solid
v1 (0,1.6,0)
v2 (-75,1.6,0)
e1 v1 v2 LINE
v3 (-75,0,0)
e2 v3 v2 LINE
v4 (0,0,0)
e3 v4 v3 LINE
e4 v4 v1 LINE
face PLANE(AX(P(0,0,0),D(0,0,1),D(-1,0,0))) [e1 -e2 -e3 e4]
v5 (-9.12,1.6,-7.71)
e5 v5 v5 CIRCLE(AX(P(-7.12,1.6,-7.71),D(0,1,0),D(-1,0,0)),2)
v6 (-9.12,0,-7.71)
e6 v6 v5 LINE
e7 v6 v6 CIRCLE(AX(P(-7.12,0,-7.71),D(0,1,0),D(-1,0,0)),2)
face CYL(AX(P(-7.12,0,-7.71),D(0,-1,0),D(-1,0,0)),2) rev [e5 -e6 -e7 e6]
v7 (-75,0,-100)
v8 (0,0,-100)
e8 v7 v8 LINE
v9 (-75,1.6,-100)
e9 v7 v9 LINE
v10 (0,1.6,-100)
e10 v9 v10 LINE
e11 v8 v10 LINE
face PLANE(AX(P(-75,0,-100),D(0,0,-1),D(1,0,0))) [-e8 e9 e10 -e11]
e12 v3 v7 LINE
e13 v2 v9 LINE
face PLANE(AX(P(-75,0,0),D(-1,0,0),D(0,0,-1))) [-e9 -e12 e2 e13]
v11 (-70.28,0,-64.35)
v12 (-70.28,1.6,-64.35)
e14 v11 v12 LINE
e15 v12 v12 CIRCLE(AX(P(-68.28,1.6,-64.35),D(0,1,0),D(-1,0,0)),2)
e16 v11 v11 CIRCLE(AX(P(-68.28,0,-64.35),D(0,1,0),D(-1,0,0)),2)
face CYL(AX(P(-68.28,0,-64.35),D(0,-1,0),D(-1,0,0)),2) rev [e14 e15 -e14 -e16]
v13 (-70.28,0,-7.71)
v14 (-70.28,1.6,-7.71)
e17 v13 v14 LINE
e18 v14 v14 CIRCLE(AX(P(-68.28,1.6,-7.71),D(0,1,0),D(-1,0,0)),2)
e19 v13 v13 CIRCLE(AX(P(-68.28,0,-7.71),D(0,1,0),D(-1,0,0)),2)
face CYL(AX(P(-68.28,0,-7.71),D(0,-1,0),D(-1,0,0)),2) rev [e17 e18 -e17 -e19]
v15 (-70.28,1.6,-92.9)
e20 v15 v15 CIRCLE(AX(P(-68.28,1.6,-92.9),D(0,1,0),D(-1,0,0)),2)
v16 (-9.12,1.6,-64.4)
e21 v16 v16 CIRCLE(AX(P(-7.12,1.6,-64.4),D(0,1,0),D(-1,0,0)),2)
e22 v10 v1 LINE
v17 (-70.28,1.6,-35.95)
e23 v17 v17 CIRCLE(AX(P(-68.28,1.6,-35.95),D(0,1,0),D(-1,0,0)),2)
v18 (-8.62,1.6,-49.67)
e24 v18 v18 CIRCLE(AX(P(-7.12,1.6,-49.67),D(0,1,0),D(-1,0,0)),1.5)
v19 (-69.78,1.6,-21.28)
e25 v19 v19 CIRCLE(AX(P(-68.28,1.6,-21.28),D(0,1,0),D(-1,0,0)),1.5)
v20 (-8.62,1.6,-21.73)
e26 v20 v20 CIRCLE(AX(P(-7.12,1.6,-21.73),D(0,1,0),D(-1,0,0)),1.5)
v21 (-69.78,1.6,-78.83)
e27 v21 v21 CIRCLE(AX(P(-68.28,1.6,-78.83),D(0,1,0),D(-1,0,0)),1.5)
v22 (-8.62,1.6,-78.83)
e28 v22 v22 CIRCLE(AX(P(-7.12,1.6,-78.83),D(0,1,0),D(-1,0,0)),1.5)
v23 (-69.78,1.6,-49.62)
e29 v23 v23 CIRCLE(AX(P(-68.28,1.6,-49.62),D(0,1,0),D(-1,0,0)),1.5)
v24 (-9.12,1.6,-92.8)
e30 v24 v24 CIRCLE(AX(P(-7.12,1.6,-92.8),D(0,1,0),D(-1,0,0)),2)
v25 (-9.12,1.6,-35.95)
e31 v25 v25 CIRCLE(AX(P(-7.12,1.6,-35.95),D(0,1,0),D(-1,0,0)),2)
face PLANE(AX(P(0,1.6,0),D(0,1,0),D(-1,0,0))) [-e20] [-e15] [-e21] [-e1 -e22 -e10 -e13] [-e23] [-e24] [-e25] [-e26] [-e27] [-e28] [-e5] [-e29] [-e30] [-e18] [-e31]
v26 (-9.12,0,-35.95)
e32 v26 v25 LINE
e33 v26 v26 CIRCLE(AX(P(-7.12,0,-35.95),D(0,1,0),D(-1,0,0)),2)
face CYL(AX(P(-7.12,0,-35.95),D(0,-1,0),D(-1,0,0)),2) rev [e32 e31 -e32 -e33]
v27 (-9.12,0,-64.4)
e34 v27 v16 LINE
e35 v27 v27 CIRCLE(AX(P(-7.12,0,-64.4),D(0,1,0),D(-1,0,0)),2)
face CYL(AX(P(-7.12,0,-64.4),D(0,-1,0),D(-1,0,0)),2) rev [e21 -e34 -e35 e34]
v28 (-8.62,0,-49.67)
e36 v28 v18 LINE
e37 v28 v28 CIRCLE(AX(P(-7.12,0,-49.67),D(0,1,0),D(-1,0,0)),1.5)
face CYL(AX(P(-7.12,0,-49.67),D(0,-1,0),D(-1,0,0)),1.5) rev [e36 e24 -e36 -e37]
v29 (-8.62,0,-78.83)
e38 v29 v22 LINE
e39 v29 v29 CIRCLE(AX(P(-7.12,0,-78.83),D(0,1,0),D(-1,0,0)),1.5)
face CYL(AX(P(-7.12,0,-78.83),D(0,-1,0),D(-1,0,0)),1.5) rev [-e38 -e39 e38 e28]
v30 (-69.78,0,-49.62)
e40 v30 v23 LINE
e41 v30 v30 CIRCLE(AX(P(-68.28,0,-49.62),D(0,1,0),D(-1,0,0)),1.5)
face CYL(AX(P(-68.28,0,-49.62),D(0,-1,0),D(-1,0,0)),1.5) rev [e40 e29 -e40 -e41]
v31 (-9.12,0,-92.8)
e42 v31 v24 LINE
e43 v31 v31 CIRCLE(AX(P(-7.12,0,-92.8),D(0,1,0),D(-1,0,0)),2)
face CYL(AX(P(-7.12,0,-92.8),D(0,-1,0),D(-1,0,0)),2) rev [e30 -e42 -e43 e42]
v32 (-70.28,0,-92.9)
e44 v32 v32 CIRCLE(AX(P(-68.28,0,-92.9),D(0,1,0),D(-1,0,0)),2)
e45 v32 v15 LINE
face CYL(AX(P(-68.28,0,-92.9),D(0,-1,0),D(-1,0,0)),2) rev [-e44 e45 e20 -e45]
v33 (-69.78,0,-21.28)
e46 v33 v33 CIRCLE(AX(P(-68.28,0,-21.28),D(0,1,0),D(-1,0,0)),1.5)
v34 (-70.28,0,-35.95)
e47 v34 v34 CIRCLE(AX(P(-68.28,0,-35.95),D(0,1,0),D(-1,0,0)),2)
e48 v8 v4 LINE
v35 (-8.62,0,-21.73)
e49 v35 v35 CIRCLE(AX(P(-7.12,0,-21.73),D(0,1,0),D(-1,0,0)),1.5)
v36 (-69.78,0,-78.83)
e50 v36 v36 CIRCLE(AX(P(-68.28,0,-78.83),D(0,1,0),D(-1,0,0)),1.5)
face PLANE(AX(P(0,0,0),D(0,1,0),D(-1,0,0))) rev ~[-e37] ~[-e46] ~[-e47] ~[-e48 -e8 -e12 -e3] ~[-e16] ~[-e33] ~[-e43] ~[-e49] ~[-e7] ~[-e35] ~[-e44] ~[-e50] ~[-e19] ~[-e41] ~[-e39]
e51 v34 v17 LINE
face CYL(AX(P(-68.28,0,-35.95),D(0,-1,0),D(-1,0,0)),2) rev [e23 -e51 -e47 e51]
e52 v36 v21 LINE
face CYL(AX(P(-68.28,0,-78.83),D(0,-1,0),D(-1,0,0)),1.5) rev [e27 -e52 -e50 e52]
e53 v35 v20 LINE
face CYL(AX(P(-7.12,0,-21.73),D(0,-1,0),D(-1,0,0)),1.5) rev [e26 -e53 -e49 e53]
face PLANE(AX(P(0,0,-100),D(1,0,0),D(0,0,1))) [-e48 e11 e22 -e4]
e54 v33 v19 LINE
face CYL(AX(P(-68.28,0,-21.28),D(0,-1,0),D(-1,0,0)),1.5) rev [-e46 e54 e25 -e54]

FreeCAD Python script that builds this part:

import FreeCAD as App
import Part
import Sketcher


def add_polygon(sketch, points):
    """Adds a closed chain of lines whose ends are joined by coincident constraints."""
    first, n = sketch.GeometryCount, len(points)
    for a, b in zip(points, points[1:] + points[:1]):
        sketch.addGeometry(Part.LineSegment(App.Vector(*a, 0), App.Vector(*b, 0)), False)
    for i in range(n):
        sketch.addConstraint(Sketcher.Constraint("Coincident", first + i, 2, first + (i + 1) % n, 1))

doc = App.newDocument("Part")
body = doc.addObject("PartDesign::Body", "Body")

# Sketch on XZ plane
sketch1 = body.newObject("Sketcher::SketchObject", "Sketch")
sketch1.AttachmentSupport = (doc.getObject("XZ_Plane"), [""])
sketch1.MapMode = "FlatFace"
add_polygon(sketch1, [(-75, 0), (0, 0), (0, -100), (-75, -100)])  # lines 0-3
sketch1.addGeometry(Part.Circle(App.Vector(-7.1, -92.8, 0), App.Vector(0, 0, 1), 2), False)  # 4
sketch1.addGeometry(Part.Circle(App.Vector(-7.1, -78.8, 0), App.Vector(0, 0, 1), 1.5), False)  # 5
sketch1.addGeometry(Part.Circle(App.Vector(-7.1, -64.4, 0), App.Vector(0, 0, 1), 2), False)  # 6
sketch1.addGeometry(Part.Circle(App.Vector(-68.3, -92.9, 0), App.Vector(0, 0, 1), 2), False)  # 7
sketch1.addGeometry(Part.Circle(App.Vector(-68.3, -78.8, 0), App.Vector(0, 0, 1), 1.5), False)  # 8
sketch1.addGeometry(Part.Circle(App.Vector(-68.3, -64.3, 0), App.Vector(0, 0, 1), 2), False)  # 9
sketch1.addGeometry(Part.Circle(App.Vector(-7.1, -49.7, 0), App.Vector(0, 0, 1), 1.5), False)  # 10
sketch1.addGeometry(Part.Circle(App.Vector(-7.1, -36, 0), App.Vector(0, 0, 1), 2), False)  # 11
sketch1.addGeometry(Part.Circle(App.Vector(-7.1, -21.7, 0), App.Vector(0, 0, 1), 1.5), False)  # 12
sketch1.addGeometry(Part.Circle(App.Vector(-7.1, -7.7, 0), App.Vector(0, 0, 1), 2), False)  # 13
sketch1.addGeometry(Part.Circle(App.Vector(-68.3, -49.6, 0), App.Vector(0, 0, 1), 1.5), False)  # 14
sketch1.addGeometry(Part.Circle(App.Vector(-68.3, -36, 0), App.Vector(0, 0, 1), 2), False)  # 15
sketch1.addGeometry(Part.Circle(App.Vector(-68.3, -21.3, 0), App.Vector(0, 0, 1), 1.5), False)  # 16
sketch1.addGeometry(Part.Circle(App.Vector(-68.3, -7.7, 0), App.Vector(0, 0, 1), 2), False)  # 17
sketch1.addConstraint(Sketcher.Constraint("Horizontal", 0))
sketch1.addConstraint(Sketcher.Constraint("Vertical", 1))
sketch1.addConstraint(Sketcher.Constraint("Horizontal", 2))
sketch1.addConstraint(Sketcher.Constraint("Vertical", 3))
sketch1.addConstraint(Sketcher.Constraint("Coincident", 0, 2, -1, 1))
sketch1.addConstraint(Sketcher.Constraint("Equal", 4, 6))
sketch1.addConstraint(Sketcher.Constraint("Equal", 6, 7))
sketch1.addConstraint(Sketcher.Constraint("Equal", 5, 8))
sketch1.addConstraint(Sketcher.Constraint("Equal", 7, 9))
sketch1.addConstraint(Sketcher.Constraint("Equal", 8, 10))
sketch1.addConstraint(Sketcher.Constraint("Equal", 9, 11))
sketch1.addConstraint(Sketcher.Constraint("Equal", 10, 12))
sketch1.addConstraint(Sketcher.Constraint("Equal", 11, 13))
sketch1.addConstraint(Sketcher.Constraint("Equal", 12, 14))
sketch1.addConstraint(Sketcher.Constraint("Equal", 13, 15))
sketch1.addConstraint(Sketcher.Constraint("Equal", 14, 16))
sketch1.addConstraint(Sketcher.Constraint("Equal", 15, 17))
sketch1.addConstraint(Sketcher.Constraint("Horizontal", 5, 3, 8, 3))
sketch1.addConstraint(Sketcher.Constraint("Horizontal", 11, 3, 15, 3))
sketch1.addConstraint(Sketcher.Constraint("Horizontal", 13, 3, 17, 3))
sketch1.addConstraint(Sketcher.Constraint("Vertical", 4, 3, 5, 3))
sketch1.addConstraint(Sketcher.Constraint("Vertical", 5, 3, 6, 3))
sketch1.addConstraint(Sketcher.Constraint("Vertical", 7, 3, 8, 3))
sketch1.addConstraint(Sketcher.Constraint("Vertical", 8, 3, 9, 3))
sketch1.addConstraint(Sketcher.Constraint("Vertical", 6, 3, 10, 3))
sketch1.addConstraint(Sketcher.Constraint("Vertical", 10, 3, 11, 3))
sketch1.addConstraint(Sketcher.Constraint("Vertical", 11, 3, 12, 3))
sketch1.addConstraint(Sketcher.Constraint("Vertical", 12, 3, 13, 3))
sketch1.addConstraint(Sketcher.Constraint("Vertical", 9, 3, 14, 3))
sketch1.addConstraint(Sketcher.Constraint("Vertical", 14, 3, 15, 3))
sketch1.addConstraint(Sketcher.Constraint("Vertical", 15, 3, 16, 3))
sketch1.addConstraint(Sketcher.Constraint("Vertical", 16, 3, 17, 3))
sketch1.addConstraint(Sketcher.Constraint("Diameter", 4, 4.0))
sketch1.addConstraint(Sketcher.Constraint("Diameter", 5, 3.0))
sketch1.addConstraint(Sketcher.Constraint("DistanceX", 0, 1, 0, 2, 75.0))
sketch1.addConstraint(Sketcher.Constraint("DistanceY", 1, 2, 1, 1, 100.0))
sketch1.addConstraint(Sketcher.Constraint("DistanceY", 4, 3, -1, 1, 92.8))
sketch1.addConstraint(Sketcher.Constraint("DistanceY", 6, 3, -1, 1, 64.4))
sketch1.addConstraint(Sketcher.Constraint("DistanceY", 7, 3, -1, 1, 92.9))
sketch1.addConstraint(Sketcher.Constraint("DistanceX", 4, 3, -1, 1, 7.12))
sketch1.addConstraint(Sketcher.Constraint("DistanceY", 5, 3, -1, 1, 78.83))
sketch1.addConstraint(Sketcher.Constraint("DistanceY", 9, 3, -1, 1, 64.35))
sketch1.addConstraint(Sketcher.Constraint("DistanceY", 10, 3, -1, 1, 49.67))
sketch1.addConstraint(Sketcher.Constraint("DistanceY", 11, 3, -1, 1, 35.95))
sketch1.addConstraint(Sketcher.Constraint("DistanceY", 12, 3, -1, 1, 21.73))
sketch1.addConstraint(Sketcher.Constraint("DistanceY", 13, 3, -1, 1, 7.71))
sketch1.addConstraint(Sketcher.Constraint("DistanceY", 14, 3, -1, 1, 49.62))
sketch1.addConstraint(Sketcher.Constraint("DistanceY", 16, 3, -1, 1, 21.28))
sketch1.addConstraint(Sketcher.Constraint("DistanceX", 2, 2, 7, 3, 6.72))
pad1 = body.newObject("PartDesign::Pad", "Pad")
pad1.Profile = sketch1
pad1.Length = 1.6
pad1.Reversed = True

doc.recompute()
